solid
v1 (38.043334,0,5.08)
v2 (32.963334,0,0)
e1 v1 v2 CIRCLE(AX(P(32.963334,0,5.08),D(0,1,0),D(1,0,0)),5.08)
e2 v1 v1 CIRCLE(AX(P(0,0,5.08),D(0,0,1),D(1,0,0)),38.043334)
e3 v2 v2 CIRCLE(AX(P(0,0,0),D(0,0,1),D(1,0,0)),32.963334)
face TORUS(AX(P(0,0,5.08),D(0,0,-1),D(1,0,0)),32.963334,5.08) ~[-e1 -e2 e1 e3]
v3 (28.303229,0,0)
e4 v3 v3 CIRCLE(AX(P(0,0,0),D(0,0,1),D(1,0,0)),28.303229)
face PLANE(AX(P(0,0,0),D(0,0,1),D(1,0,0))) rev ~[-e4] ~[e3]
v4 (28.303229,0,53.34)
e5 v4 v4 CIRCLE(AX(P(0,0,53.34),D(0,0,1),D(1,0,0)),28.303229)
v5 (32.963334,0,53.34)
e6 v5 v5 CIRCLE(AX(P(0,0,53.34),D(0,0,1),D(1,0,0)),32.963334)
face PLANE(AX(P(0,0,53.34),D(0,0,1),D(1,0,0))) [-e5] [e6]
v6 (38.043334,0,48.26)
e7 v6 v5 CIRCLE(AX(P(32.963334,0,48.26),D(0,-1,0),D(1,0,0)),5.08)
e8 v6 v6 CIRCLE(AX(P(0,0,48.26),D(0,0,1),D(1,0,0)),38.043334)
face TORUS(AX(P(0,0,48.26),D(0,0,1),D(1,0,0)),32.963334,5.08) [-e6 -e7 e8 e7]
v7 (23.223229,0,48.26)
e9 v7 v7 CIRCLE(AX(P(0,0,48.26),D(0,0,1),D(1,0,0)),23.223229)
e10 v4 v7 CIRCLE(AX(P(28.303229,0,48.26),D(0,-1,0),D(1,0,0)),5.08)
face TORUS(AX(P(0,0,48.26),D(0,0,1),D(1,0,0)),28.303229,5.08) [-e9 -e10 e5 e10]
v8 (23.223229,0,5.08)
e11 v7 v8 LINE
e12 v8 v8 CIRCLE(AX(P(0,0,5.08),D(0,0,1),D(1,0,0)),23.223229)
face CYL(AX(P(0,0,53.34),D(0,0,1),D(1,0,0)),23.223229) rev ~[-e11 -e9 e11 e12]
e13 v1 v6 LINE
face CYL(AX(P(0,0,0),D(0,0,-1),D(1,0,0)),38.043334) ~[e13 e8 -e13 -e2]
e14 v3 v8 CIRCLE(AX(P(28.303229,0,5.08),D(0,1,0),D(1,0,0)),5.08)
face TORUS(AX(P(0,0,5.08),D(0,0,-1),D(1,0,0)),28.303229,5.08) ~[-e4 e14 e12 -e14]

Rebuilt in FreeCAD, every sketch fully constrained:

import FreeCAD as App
import Part
import Sketcher
Q = App.Units.Quantity


def edges_at(feature, points):
    """Names of the edges that pass closest to the given points."""
    edges = feature.Shape.Edges
    near = lambda p: min(range(len(edges)), key=lambda i: edges[i].distToShape(Part.Vertex(*p))[0])
    return sorted({f"Edge{near(p) + 1}" for p in points})

doc = App.newDocument("Part")
body = doc.addObject("PartDesign::Body", "Body")

# Sketch on XY plane
sketch1 = body.newObject("Sketcher::SketchObject", "Sketch")
sketch1.AttachmentSupport = (doc.getObject("XY_Plane"), [""])
sketch1.MapMode = "FlatFace"
sketch1.addGeometry(Part.Circle(App.Vector(0, 0, 0), App.Vector(0, 0, 1), 38.043334), False)
sketch1.addConstraint(Sketcher.Constraint("Coincident", 0, 3, -1, 1))
sketch1.addConstraint(Sketcher.Constraint("Diameter", 0, 76.086668))
pad1 = body.newObject("PartDesign::Pad", "Pad")
pad1.Profile = sketch1
pad1.Length = Q("2.1 in")

# Sketch on XY plane
sketch2 = body.newObject("Sketcher::SketchObject", "Sketch001")
sketch2.AttachmentSupport = (doc.getObject("XY_Plane"), [""])
sketch2.MapMode = "FlatFace"
sketch2.AttachmentOffset = App.Placement(App.Vector(0, 0, 2.1 * 25.4), App.Rotation())
sketch2.addGeometry(Part.Circle(App.Vector(0, 0, 0), App.Vector(0, 0, 1), 23.223229), False)
sketch2.addConstraint(Sketcher.Constraint("Coincident", 0, 3, -1, 1))
sketch2.addConstraint(Sketcher.Constraint("Diameter", 0, 46.446458))
pocket1 = body.newObject("PartDesign::Pocket", "Pocket")
pocket1.Profile = sketch2
pocket1.Type = "ThroughAll"
doc.recompute()

fillet = body.newObject("PartDesign::Fillet", "Fillet")
fillet.Base = (pocket1, edges_at(pocket1, [
    (-38.043, 0, 53.34),
    (-23.223, 0, 53.34),
    (-38.043, 0, 0),
    (-23.223, 0, 0),
]))
fillet.Radius = Q("0.2 in")

doc.recompute()
